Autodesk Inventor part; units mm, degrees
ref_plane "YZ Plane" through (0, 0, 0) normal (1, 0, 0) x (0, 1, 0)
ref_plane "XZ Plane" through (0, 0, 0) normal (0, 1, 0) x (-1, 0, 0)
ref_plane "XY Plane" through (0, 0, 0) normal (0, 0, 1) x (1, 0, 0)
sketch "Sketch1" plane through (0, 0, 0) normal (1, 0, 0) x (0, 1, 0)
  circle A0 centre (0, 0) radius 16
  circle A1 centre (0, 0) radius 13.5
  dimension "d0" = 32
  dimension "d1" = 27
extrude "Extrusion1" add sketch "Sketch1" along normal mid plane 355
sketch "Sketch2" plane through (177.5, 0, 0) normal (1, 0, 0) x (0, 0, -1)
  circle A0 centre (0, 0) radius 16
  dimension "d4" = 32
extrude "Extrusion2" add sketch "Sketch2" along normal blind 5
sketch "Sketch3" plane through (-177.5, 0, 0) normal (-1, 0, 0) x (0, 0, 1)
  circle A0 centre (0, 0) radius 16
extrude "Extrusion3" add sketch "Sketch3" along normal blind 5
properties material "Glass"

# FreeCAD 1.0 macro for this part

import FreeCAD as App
import Part
import Sketcher
from FreeCAD import Vector

doc = App.newDocument("Part")
body = doc.addObject("PartDesign::Body", "Body")

# Sketch on YZ plane
sketch1 = body.newObject("Sketcher::SketchObject", "Sketch")
sketch1.AttachmentSupport = (doc.getObject("YZ_Plane"), [""])
sketch1.MapMode = "FlatFace"
sketch1.addGeometry([
    Part.Circle(Vector(0, 0, 0), Vector(0, 0, 1), 16),
    Part.Circle(Vector(0, 0, 0), Vector(0, 0, 1), 13.5),
], False)
sketch1.addConstraint([
    Sketcher.Constraint("Coincident", 0, 3, -1, 1),
    Sketcher.Constraint("Coincident", 1, 3, -1, 1),
    Sketcher.Constraint("Diameter", 0, 32.0),
    Sketcher.Constraint("Diameter", 1, 27.0),
])
pad1 = body.newObject("PartDesign::Pad", "Pad")
pad1.Profile = sketch1
pad1.Length = 355
pad1.Midplane = True

# Sketch on YZ plane
sketch2 = body.newObject("Sketcher::SketchObject", "Sketch001")
sketch2.AttachmentSupport = (doc.getObject("YZ_Plane"), [""])
sketch2.MapMode = "FlatFace"
sketch2.AttachmentOffset = App.Placement(Vector(0, 0, 177.5), App.Rotation())
sketch2.addGeometry(Part.Circle(Vector(0, 0, 0), Vector(0, 0, 1), 16), False)
sketch2.addConstraint([
    Sketcher.Constraint("Coincident", 0, 3, -1, 1),
    Sketcher.Constraint("Diameter", 0, 32.0),
])
pad2 = body.newObject("PartDesign::Pad", "Pad001")
pad2.Profile = sketch2
pad2.Length = 5

# Sketch on YZ plane
sketch3 = body.newObject("Sketcher::SketchObject", "Sketch002")
sketch3.AttachmentSupport = (doc.getObject("YZ_Plane"), [""])
sketch3.MapMode = "FlatFace"
sketch3.AttachmentOffset = App.Placement(Vector(0, 0, -177.5), App.Rotation())
sketch3.addGeometry(Part.Circle(Vector(0, 0, 0), Vector(0, 0, 1), 16), False)
sketch3.addConstraint([
    Sketcher.Constraint("Coincident", 0, 3, -1, 1),
    Sketcher.Constraint("Diameter", 0, 32.0),
])
pad3 = body.newObject("PartDesign::Pad", "Pad002")
pad3.Profile = sketch3
pad3.Length = 5
pad3.Reversed = True

doc.recompute()
